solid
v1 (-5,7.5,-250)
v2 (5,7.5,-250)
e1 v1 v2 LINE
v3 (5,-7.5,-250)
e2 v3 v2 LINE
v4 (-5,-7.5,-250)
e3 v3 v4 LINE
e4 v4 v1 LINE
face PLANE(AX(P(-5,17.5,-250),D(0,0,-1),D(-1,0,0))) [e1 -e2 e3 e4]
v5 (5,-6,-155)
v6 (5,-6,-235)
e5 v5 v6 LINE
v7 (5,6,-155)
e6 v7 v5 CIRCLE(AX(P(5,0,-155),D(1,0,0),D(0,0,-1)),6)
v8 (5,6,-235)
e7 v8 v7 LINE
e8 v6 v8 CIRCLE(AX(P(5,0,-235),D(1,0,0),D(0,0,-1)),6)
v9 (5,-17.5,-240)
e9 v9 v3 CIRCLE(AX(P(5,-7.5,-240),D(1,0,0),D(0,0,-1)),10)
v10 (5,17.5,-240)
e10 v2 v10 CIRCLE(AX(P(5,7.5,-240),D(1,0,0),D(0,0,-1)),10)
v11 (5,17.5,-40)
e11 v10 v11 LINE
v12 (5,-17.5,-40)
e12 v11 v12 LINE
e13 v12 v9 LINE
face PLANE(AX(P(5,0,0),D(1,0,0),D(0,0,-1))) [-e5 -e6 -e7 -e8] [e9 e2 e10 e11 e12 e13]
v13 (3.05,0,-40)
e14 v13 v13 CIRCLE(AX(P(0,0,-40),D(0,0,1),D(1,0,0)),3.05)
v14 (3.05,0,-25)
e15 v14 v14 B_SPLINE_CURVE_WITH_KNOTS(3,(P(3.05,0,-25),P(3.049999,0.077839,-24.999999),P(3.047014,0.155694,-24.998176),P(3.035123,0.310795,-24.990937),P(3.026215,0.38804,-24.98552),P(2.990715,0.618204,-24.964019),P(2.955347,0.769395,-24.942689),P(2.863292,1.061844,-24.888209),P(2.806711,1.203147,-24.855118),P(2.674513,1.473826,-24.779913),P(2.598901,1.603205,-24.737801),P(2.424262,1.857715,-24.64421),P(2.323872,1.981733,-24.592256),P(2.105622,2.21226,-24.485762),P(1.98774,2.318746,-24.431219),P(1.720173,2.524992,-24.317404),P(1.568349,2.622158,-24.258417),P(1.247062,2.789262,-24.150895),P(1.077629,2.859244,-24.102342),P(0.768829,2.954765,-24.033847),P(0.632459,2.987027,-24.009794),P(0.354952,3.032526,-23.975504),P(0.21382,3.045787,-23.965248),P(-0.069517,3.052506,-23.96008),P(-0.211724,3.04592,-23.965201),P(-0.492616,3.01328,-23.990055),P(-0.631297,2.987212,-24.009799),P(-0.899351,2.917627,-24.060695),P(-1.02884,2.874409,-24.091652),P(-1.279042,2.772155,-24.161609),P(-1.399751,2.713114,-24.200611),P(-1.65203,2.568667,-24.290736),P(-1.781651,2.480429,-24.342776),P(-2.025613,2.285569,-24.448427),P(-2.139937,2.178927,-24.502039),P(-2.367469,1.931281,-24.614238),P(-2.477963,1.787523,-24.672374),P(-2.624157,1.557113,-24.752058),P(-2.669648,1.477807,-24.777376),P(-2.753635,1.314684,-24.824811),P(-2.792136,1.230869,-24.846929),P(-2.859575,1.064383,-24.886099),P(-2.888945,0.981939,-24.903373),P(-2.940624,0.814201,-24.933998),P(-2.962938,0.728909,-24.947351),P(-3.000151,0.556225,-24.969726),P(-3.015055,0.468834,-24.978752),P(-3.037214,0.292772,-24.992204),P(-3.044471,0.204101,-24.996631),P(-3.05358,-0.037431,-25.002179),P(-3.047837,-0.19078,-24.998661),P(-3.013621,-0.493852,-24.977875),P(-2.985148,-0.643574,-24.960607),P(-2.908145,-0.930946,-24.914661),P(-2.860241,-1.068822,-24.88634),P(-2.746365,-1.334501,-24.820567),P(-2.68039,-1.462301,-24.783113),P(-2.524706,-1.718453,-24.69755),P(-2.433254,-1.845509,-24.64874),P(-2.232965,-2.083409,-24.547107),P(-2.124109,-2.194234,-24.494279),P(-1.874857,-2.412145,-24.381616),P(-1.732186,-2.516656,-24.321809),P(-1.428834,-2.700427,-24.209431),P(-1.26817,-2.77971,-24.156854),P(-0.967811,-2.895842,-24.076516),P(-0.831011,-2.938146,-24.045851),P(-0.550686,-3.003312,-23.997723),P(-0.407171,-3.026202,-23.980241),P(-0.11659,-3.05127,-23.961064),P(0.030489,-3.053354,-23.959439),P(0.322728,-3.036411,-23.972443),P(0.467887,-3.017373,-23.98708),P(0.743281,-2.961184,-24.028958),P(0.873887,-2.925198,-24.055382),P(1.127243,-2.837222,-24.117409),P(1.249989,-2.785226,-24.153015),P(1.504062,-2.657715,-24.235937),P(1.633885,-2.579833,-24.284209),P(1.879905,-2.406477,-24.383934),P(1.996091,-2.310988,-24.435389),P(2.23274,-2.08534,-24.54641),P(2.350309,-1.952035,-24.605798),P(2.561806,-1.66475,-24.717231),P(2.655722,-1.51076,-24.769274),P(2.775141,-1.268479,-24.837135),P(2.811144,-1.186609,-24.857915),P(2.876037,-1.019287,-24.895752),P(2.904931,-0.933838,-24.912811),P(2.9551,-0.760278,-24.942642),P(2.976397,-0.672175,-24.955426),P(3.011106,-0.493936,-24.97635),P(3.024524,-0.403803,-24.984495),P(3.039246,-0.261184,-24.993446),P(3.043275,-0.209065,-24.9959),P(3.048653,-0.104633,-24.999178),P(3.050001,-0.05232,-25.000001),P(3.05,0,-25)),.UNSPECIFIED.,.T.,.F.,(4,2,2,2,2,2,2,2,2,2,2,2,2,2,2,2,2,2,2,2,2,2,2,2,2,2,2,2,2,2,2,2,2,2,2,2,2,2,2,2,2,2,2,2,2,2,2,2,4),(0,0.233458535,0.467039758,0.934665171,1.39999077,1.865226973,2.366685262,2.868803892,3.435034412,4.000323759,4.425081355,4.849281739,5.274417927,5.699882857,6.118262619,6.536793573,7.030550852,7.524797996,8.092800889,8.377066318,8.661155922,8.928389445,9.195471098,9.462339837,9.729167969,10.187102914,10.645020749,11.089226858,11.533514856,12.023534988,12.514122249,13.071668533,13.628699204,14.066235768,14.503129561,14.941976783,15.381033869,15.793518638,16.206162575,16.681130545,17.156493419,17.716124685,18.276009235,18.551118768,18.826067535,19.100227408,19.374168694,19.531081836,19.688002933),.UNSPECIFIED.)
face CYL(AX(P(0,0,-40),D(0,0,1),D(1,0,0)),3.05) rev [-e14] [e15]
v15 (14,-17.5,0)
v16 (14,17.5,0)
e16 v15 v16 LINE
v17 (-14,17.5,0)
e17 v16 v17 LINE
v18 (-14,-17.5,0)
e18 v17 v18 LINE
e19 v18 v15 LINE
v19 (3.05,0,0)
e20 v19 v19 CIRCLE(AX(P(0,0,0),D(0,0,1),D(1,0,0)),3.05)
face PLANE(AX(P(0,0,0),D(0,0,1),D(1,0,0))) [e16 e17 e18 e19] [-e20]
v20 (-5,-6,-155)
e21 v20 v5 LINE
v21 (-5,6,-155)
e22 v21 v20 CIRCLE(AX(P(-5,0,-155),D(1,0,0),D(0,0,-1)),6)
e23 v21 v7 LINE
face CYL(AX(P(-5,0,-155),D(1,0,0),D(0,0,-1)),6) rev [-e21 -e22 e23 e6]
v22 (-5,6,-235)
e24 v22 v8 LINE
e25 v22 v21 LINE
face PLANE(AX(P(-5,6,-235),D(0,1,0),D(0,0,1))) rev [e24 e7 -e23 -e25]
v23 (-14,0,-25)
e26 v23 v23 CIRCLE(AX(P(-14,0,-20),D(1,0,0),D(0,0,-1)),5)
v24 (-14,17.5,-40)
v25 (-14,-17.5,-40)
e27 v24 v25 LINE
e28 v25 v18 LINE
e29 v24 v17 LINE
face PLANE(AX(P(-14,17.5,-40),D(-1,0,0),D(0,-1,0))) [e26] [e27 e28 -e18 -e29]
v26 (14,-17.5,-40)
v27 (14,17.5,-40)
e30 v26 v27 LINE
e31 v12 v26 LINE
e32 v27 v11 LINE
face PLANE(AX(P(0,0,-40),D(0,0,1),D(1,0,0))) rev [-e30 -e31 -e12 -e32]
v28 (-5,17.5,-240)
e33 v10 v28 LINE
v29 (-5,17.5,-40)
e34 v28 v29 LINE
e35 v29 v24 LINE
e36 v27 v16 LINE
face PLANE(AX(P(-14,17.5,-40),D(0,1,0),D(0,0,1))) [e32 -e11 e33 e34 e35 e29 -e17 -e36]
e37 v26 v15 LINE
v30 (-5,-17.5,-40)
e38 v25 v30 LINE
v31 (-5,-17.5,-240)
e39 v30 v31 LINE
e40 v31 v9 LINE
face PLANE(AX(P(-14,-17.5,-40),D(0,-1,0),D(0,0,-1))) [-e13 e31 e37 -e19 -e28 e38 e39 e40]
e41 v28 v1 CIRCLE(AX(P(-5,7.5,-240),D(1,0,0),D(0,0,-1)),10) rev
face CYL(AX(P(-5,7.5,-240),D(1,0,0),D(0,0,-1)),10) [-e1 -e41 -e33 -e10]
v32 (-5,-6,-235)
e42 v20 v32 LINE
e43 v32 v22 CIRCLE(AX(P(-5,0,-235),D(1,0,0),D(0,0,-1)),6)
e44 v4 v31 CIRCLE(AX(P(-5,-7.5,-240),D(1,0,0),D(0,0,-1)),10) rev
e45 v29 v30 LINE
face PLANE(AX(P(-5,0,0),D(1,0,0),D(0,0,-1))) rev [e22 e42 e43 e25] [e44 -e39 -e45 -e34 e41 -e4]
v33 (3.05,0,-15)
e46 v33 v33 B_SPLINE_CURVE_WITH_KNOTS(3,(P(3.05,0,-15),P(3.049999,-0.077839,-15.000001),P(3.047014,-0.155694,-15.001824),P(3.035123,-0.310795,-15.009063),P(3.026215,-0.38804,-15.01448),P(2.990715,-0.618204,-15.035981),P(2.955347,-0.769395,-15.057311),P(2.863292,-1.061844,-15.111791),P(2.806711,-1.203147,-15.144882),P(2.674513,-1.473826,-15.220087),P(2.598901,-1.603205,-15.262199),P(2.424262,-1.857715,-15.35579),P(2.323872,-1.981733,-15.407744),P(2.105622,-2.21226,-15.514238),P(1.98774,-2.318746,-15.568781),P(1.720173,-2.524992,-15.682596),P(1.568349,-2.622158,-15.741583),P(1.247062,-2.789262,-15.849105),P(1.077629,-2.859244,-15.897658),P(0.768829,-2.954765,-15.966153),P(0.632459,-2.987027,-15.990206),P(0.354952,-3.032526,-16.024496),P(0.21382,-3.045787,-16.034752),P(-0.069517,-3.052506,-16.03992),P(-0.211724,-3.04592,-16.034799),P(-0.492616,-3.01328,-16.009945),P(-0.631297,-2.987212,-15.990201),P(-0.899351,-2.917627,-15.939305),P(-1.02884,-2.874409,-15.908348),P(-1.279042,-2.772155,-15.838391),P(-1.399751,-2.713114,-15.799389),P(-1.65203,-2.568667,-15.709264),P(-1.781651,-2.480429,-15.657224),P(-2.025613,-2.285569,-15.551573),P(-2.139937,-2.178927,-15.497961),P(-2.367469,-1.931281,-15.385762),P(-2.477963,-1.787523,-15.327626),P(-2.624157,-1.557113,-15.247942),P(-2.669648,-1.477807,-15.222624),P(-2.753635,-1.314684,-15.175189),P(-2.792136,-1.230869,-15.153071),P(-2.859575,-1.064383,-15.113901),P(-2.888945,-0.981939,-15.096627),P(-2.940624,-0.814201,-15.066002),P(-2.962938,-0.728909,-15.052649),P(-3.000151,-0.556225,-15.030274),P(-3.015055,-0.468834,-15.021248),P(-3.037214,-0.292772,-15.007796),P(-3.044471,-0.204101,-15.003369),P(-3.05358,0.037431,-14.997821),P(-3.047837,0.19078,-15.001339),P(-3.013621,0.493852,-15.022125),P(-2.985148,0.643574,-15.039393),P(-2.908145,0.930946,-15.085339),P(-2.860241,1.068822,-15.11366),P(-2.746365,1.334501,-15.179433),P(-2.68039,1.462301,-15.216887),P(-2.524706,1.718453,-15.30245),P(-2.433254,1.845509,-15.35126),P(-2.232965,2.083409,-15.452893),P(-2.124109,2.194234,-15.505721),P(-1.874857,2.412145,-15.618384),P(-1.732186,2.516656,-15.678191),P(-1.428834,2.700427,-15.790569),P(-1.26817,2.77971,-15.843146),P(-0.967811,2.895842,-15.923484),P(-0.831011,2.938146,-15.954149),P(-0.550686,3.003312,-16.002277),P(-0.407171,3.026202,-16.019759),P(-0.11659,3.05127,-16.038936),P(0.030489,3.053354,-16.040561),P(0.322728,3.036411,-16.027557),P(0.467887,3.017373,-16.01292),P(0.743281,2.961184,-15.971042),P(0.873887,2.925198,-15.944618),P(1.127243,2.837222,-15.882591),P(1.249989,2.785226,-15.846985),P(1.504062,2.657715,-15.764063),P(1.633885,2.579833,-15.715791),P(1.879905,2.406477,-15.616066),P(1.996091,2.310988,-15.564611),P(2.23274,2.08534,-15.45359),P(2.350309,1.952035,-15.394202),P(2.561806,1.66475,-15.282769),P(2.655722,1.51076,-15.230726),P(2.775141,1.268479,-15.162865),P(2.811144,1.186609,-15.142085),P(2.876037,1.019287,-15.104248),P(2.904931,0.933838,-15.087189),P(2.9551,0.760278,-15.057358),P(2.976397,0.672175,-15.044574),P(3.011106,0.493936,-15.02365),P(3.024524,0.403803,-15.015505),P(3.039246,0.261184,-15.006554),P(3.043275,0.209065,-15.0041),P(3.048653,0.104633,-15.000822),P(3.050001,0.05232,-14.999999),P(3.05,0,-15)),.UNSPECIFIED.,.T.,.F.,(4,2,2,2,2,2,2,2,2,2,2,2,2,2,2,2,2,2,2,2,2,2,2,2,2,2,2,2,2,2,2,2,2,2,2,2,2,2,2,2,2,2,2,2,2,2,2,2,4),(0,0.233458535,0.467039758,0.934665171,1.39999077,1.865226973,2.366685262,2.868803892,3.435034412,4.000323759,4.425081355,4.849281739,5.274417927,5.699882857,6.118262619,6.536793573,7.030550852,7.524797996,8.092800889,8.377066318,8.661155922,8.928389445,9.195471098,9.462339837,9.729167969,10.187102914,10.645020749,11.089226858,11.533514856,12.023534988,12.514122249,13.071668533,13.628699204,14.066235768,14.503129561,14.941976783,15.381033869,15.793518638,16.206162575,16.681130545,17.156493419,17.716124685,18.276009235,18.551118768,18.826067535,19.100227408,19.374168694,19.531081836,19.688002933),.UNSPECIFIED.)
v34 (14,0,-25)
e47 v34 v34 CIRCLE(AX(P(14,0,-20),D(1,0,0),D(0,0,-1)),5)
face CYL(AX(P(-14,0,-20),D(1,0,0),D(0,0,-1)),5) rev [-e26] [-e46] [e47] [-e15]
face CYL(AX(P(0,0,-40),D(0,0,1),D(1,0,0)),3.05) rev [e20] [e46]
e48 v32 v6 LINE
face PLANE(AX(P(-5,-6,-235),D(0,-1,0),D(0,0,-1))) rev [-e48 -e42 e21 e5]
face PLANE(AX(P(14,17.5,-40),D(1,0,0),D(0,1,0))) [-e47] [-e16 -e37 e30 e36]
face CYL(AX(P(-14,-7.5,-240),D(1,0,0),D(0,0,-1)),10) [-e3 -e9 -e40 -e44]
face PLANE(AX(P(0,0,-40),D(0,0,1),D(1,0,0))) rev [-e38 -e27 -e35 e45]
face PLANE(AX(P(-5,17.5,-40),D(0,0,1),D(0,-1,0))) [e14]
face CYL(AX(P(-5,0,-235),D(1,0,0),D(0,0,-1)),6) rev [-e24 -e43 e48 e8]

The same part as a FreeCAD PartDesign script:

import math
import FreeCAD as App
import Part
import Sketcher
from FreeCAD import Vector
Q = App.Units.Quantity


def edges_at(feature, points):
    """Names of the edges that pass closest to the given points."""
    edges = feature.Shape.Edges
    near = lambda p: min(range(len(edges)), key=lambda i: edges[i].distToShape(Part.Vertex(*p))[0])
    return sorted({f"Edge{near(p) + 1}" for p in points})

doc = App.newDocument("Part")
params = doc.addObject("Spreadsheet::Sheet", "Params")
for row, (alias, value) in enumerate([
    ("sketch1_diameter", "6.1 mm"),
    ("sketch1_width", "28 mm"),
    ("sketch1_height", "35 mm"),
    ("pad1_length", "40 mm"),
    ("sketch2_diameter", "10 mm"),
    ("sketch3_radius", "6 mm"),
    ("sketch3_width", "35 mm"),
    ("sketch3_height", "210 mm"),
    ("sketch3_height2", "80 mm"),
    ("pad2_length", "5 mm"),
    ("pad2_length2", "5 mm"),
    ("fillet_radius", "10 mm"),
], start=1):
    params.set(f"A{row}", alias)
    params.set(f"B{row}", "=" + value)
    params.setAlias(f"B{row}", alias)

body = doc.addObject("PartDesign::Body", "Body")

sketch1 = body.newObject("Sketcher::SketchObject", "Sketch")
sketch1.AttachmentSupport = (doc.getObject("XY_Plane"), [""])
sketch1.MapMode = "FlatFace"
sketch1.addGeometry([
    Part.LineSegment(Vector(-14, 17.5, 0), Vector(-14, -17.5, 0)),
    Part.LineSegment(Vector(-14, -17.5, 0), Vector(14, -17.5, 0)),
    Part.LineSegment(Vector(14, -17.5, 0), Vector(14, 17.5, 0)),
    Part.LineSegment(Vector(14, 17.5, 0), Vector(-14, 17.5, 0)),
    Part.Circle(Vector(0, 0, 0), Vector(0, 0, 1), 3.05),
], False)
sketch1.addConstraint([
    Sketcher.Constraint("Coincident", 0, 2, 1, 1),
    Sketcher.Constraint("Coincident", 1, 2, 2, 1),
    Sketcher.Constraint("Coincident", 2, 2, 3, 1),
    Sketcher.Constraint("Coincident", 3, 2, 0, 1),
    Sketcher.Constraint("Vertical", 0),
    Sketcher.Constraint("Horizontal", 1),
    Sketcher.Constraint("Vertical", 2),
    Sketcher.Constraint("Horizontal", 3),
    Sketcher.Constraint("Coincident", 4, 3, -1, 1),
    Sketcher.Constraint("Symmetric", 0, 2, 2, 2, -1, 1),
    Sketcher.Constraint("Diameter", 4, Q("6.1 mm")),
    Sketcher.Constraint("DistanceX", 1, 1, 1, 2, Q("28 mm")),
    Sketcher.Constraint("DistanceY", 0, 2, 0, 1, Q("35 mm")),
])
sketch1.setExpression("Constraints[10]", "Params.sketch1_diameter")
sketch1.setExpression("Constraints[11]", "Params.sketch1_width")
sketch1.setExpression("Constraints[12]", "Params.sketch1_height")
pad1 = body.newObject("PartDesign::Pad", "Pad")
pad1.Profile = sketch1
pad1.setExpression("Length", "Params.pad1_length")
pad1.Reversed = True

sketch2 = body.newObject("Sketcher::SketchObject", "Sketch001")
sketch2.AttachmentSupport = (doc.getObject("YZ_Plane"), [""])
sketch2.MapMode = "FlatFace"
sketch2.addGeometry(Part.Circle(Vector(0, -20, 0), Vector(0, 0, 1), 5), False)
sketch2.addConstraint([
    Sketcher.Constraint("PointOnObject", 0, 3, -2),
    Sketcher.Constraint("Diameter", 0, Q("10 mm")),
    Sketcher.Constraint("DistanceY", 0, 3, -1, 1, Q("20 mm")),
])
sketch2.setExpression("Constraints[1]", "Params.sketch2_diameter")
pocket1 = body.newObject("PartDesign::Pocket", "Pocket")
pocket1.Profile = sketch2
pocket1.Type = "ThroughAll"
pocket1.Midplane = True

sketch3 = body.newObject("Sketcher::SketchObject", "Sketch002")
sketch3.AttachmentSupport = (doc.getObject("YZ_Plane"), [""])
sketch3.MapMode = "FlatFace"
sketch3.addGeometry([
    Part.LineSegment(Vector(17.5, -40, 0), Vector(-17.5, -40, 0)),
    Part.LineSegment(Vector(-17.5, -40, 0), Vector(-17.5, -250, 0)),
    Part.LineSegment(Vector(-17.5, -250, 0), Vector(17.5, -250, 0)),
    Part.LineSegment(Vector(17.5, -250, 0), Vector(17.5, -40, 0)),
    Part.ArcOfCircle(Part.Circle(Vector(0, -235, 0), Vector(0, 0, 1), 6), math.radians(180), math.radians(360)),
    Part.LineSegment(Vector(-6, -235, 0), Vector(-6, -155, 0)),
    Part.ArcOfCircle(Part.Circle(Vector(0, -155, 0), Vector(0, 0, 1), 6), math.radians(0), math.radians(180)),
    Part.LineSegment(Vector(6, -155, 0), Vector(6, -235, 0)),
], False)
sketch3.addConstraint([
    Sketcher.Constraint("Coincident", 0, 2, 1, 1),
    Sketcher.Constraint("Coincident", 1, 2, 2, 1),
    Sketcher.Constraint("Coincident", 2, 2, 3, 1),
    Sketcher.Constraint("Coincident", 3, 2, 0, 1),
    Sketcher.Constraint("Tangent", 4, 1, 5, 1),
    Sketcher.Constraint("Tangent", 5, 2, 6, 2),
    Sketcher.Constraint("Tangent", 6, 1, 7, 1),
    Sketcher.Constraint("Tangent", 7, 2, 4, 2),
    Sketcher.Constraint("Horizontal", 0),
    Sketcher.Constraint("Vertical", 1),
    Sketcher.Constraint("Horizontal", 2),
    Sketcher.Constraint("Vertical", 3),
    Sketcher.Constraint("Vertical", 5),
    Sketcher.Constraint("Vertical", 7),
    Sketcher.Constraint("PointOnObject", 4, 3, -2),
    Sketcher.Constraint("Radius", 4, Q("6 mm")),
    Sketcher.Constraint("DistanceX", 0, 2, 0, 1, Q("35 mm")),
    Sketcher.Constraint("DistanceY", 1, 2, 1, 1, Q("210 mm")),
    Sketcher.Constraint("DistanceY", 5, 1, 5, 2, Q("80 mm")),
    Sketcher.Constraint("DistanceY", 4, 3, -1, 1, Q("235 mm")),
    Sketcher.Constraint("DistanceY", 0, 2, -1, 1, Q("40 mm")),
    Sketcher.Constraint("DistanceX", 0, 2, -1, 1, Q("17.5 mm")),
])
sketch3.setExpression("Constraints[15]", "Params.sketch3_radius")
sketch3.setExpression("Constraints[16]", "Params.sketch3_width")
sketch3.setExpression("Constraints[17]", "Params.sketch3_height")
sketch3.setExpression("Constraints[18]", "Params.sketch3_height2")
pad2 = body.newObject("PartDesign::Pad", "Pad001")
pad2.Profile = sketch3
pad2.Type = "TwoLengths"
pad2.setExpression("Length", "Params.pad2_length")
pad2.setExpression("Length2", "Params.pad2_length2")
doc.recompute()

fillet = body.newObject("PartDesign::Fillet", "Fillet")
fillet.Base = (pad2, edges_at(pad2, [(0, 17.5, -250), (0, -17.5, -250)]))
fillet.setExpression("Radius", "Params.fillet_radius")

doc.recompute()
